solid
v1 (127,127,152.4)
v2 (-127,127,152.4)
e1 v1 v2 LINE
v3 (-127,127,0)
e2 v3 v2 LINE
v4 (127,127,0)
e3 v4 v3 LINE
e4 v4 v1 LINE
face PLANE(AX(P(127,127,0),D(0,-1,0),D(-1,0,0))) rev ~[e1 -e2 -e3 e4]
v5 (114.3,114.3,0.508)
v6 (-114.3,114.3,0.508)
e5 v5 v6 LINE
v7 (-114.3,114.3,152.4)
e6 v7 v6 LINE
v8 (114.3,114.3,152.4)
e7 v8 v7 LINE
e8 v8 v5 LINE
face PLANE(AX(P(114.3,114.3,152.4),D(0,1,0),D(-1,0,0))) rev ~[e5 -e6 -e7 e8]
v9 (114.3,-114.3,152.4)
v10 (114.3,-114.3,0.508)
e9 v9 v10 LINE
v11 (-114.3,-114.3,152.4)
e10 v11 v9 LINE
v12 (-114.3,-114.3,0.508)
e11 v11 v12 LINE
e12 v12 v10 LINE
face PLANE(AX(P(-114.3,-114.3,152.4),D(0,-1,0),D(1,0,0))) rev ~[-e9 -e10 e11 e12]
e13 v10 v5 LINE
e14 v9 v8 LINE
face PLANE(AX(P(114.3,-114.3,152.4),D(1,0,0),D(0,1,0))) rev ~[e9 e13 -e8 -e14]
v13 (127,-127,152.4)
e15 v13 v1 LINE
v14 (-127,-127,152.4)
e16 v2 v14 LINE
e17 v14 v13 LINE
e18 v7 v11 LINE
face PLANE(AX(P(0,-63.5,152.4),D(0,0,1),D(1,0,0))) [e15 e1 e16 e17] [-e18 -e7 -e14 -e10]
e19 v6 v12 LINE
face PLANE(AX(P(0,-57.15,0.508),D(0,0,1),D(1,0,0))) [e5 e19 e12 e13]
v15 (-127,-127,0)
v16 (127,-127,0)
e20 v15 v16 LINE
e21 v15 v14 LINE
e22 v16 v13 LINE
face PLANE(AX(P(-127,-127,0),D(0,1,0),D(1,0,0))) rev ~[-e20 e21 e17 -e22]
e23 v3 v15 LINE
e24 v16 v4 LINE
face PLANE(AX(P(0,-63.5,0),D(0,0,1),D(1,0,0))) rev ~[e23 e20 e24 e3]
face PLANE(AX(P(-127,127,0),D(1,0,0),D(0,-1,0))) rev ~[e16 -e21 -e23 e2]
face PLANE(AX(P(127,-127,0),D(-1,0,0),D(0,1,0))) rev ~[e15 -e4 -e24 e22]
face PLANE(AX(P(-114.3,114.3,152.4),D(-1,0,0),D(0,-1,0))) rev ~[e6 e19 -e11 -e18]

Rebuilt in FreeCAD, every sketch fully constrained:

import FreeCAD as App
import Part
import Sketcher
from FreeCAD import Vector
Q = App.Units.Quantity

doc = App.newDocument("Part")
params = doc.addObject("Spreadsheet::Sheet", "Params")
for row, (alias, value) in enumerate([
    ("sketch1_width", "10 in"),
    ("pad1_length", "6 in"),
    ("sketch2_width", "9 in"),
    ("pocket1_length", "5.98 in"),
], start=1):
    params.set(f"A{row}", alias)
    params.set(f"B{row}", "=" + value)
    params.setAlias(f"B{row}", alias)

body = doc.addObject("PartDesign::Body", "Body")

# Sketch on XY plane
sketch1 = doc.addObject("Sketcher::SketchObject", "Sketch")
body.addObject(sketch1)
sketch1.AttachmentSupport = (doc.XY_Plane, [""])
sketch1.MapMode = "FlatFace"
sketch1.addGeometry(Part.LineSegment(Vector(-127, -127, 0), Vector(127, -127, 0)), False)
sketch1.addGeometry(Part.LineSegment(Vector(127, -127, 0), Vector(127, 127, 0)), False)
sketch1.addGeometry(Part.LineSegment(Vector(127, 127, 0), Vector(-127, 127, 0)), False)
sketch1.addGeometry(Part.LineSegment(Vector(-127, 127, 0), Vector(-127, -127, 0)), False)
sketch1.addConstraint(Sketcher.Constraint("Coincident", 0, 2, 1, 1))
sketch1.addConstraint(Sketcher.Constraint("Coincident", 1, 2, 2, 1))
sketch1.addConstraint(Sketcher.Constraint("Coincident", 2, 2, 3, 1))
sketch1.addConstraint(Sketcher.Constraint("Coincident", 3, 2, 0, 1))
sketch1.addConstraint(Sketcher.Constraint("Horizontal", 0))
sketch1.addConstraint(Sketcher.Constraint("Vertical", 1))
sketch1.addConstraint(Sketcher.Constraint("Horizontal", 2))
sketch1.addConstraint(Sketcher.Constraint("Vertical", 3))
sketch1.addConstraint(Sketcher.Constraint("Symmetric", 0, 2, 2, 2, -1, 1))
sketch1.addConstraint(Sketcher.Constraint("Equal", 2, 1))
sketch1.addConstraint(Sketcher.Constraint("DistanceX", 0, 1, 0, 2, Q("10 in")))
sketch1.setExpression("Constraints[10]", "Params.sketch1_width")
pad1 = doc.addObject("PartDesign::Pad", "Pad")
body.addObject(pad1)
pad1.Profile = sketch1
pad1.setExpression("Length", "Params.pad1_length")

# Sketch on XY plane
sketch2 = doc.addObject("Sketcher::SketchObject", "Sketch001")
body.addObject(sketch2)
sketch2.AttachmentSupport = (doc.XY_Plane, [""])
sketch2.MapMode = "FlatFace"
sketch2.AttachmentOffset = App.Placement(Vector(0, 0, 6 * 25.4), App.Rotation())
sketch2.addGeometry(Part.LineSegment(Vector(-114, -114, 0), Vector(114, -114, 0)), False)
sketch2.addGeometry(Part.LineSegment(Vector(114, -114, 0), Vector(114, 114, 0)), False)
sketch2.addGeometry(Part.LineSegment(Vector(114, 114, 0), Vector(-114, 114, 0)), False)
sketch2.addGeometry(Part.LineSegment(Vector(-114, 114, 0), Vector(-114, -114, 0)), False)
sketch2.addConstraint(Sketcher.Constraint("Coincident", 0, 2, 1, 1))
sketch2.addConstraint(Sketcher.Constraint("Coincident", 1, 2, 2, 1))
sketch2.addConstraint(Sketcher.Constraint("Coincident", 2, 2, 3, 1))
sketch2.addConstraint(Sketcher.Constraint("Coincident", 3, 2, 0, 1))
sketch2.addConstraint(Sketcher.Constraint("Horizontal", 0))
sketch2.addConstraint(Sketcher.Constraint("Vertical", 1))
sketch2.addConstraint(Sketcher.Constraint("Horizontal", 2))
sketch2.addConstraint(Sketcher.Constraint("Vertical", 3))
sketch2.addConstraint(Sketcher.Constraint("Symmetric", 0, 2, 2, 2, -1, 1))
sketch2.addConstraint(Sketcher.Constraint("Equal", 2, 1))
sketch2.addConstraint(Sketcher.Constraint("DistanceX", 0, 1, 0, 2, Q("9 in")))
sketch2.setExpression("Constraints[10]", "Params.sketch2_width")
pocket1 = doc.addObject("PartDesign::Pocket", "Pocket")
body.addObject(pocket1)
pocket1.Profile = sketch2
pocket1.setExpression("Length", "Params.pocket1_length")

doc.recompute()
